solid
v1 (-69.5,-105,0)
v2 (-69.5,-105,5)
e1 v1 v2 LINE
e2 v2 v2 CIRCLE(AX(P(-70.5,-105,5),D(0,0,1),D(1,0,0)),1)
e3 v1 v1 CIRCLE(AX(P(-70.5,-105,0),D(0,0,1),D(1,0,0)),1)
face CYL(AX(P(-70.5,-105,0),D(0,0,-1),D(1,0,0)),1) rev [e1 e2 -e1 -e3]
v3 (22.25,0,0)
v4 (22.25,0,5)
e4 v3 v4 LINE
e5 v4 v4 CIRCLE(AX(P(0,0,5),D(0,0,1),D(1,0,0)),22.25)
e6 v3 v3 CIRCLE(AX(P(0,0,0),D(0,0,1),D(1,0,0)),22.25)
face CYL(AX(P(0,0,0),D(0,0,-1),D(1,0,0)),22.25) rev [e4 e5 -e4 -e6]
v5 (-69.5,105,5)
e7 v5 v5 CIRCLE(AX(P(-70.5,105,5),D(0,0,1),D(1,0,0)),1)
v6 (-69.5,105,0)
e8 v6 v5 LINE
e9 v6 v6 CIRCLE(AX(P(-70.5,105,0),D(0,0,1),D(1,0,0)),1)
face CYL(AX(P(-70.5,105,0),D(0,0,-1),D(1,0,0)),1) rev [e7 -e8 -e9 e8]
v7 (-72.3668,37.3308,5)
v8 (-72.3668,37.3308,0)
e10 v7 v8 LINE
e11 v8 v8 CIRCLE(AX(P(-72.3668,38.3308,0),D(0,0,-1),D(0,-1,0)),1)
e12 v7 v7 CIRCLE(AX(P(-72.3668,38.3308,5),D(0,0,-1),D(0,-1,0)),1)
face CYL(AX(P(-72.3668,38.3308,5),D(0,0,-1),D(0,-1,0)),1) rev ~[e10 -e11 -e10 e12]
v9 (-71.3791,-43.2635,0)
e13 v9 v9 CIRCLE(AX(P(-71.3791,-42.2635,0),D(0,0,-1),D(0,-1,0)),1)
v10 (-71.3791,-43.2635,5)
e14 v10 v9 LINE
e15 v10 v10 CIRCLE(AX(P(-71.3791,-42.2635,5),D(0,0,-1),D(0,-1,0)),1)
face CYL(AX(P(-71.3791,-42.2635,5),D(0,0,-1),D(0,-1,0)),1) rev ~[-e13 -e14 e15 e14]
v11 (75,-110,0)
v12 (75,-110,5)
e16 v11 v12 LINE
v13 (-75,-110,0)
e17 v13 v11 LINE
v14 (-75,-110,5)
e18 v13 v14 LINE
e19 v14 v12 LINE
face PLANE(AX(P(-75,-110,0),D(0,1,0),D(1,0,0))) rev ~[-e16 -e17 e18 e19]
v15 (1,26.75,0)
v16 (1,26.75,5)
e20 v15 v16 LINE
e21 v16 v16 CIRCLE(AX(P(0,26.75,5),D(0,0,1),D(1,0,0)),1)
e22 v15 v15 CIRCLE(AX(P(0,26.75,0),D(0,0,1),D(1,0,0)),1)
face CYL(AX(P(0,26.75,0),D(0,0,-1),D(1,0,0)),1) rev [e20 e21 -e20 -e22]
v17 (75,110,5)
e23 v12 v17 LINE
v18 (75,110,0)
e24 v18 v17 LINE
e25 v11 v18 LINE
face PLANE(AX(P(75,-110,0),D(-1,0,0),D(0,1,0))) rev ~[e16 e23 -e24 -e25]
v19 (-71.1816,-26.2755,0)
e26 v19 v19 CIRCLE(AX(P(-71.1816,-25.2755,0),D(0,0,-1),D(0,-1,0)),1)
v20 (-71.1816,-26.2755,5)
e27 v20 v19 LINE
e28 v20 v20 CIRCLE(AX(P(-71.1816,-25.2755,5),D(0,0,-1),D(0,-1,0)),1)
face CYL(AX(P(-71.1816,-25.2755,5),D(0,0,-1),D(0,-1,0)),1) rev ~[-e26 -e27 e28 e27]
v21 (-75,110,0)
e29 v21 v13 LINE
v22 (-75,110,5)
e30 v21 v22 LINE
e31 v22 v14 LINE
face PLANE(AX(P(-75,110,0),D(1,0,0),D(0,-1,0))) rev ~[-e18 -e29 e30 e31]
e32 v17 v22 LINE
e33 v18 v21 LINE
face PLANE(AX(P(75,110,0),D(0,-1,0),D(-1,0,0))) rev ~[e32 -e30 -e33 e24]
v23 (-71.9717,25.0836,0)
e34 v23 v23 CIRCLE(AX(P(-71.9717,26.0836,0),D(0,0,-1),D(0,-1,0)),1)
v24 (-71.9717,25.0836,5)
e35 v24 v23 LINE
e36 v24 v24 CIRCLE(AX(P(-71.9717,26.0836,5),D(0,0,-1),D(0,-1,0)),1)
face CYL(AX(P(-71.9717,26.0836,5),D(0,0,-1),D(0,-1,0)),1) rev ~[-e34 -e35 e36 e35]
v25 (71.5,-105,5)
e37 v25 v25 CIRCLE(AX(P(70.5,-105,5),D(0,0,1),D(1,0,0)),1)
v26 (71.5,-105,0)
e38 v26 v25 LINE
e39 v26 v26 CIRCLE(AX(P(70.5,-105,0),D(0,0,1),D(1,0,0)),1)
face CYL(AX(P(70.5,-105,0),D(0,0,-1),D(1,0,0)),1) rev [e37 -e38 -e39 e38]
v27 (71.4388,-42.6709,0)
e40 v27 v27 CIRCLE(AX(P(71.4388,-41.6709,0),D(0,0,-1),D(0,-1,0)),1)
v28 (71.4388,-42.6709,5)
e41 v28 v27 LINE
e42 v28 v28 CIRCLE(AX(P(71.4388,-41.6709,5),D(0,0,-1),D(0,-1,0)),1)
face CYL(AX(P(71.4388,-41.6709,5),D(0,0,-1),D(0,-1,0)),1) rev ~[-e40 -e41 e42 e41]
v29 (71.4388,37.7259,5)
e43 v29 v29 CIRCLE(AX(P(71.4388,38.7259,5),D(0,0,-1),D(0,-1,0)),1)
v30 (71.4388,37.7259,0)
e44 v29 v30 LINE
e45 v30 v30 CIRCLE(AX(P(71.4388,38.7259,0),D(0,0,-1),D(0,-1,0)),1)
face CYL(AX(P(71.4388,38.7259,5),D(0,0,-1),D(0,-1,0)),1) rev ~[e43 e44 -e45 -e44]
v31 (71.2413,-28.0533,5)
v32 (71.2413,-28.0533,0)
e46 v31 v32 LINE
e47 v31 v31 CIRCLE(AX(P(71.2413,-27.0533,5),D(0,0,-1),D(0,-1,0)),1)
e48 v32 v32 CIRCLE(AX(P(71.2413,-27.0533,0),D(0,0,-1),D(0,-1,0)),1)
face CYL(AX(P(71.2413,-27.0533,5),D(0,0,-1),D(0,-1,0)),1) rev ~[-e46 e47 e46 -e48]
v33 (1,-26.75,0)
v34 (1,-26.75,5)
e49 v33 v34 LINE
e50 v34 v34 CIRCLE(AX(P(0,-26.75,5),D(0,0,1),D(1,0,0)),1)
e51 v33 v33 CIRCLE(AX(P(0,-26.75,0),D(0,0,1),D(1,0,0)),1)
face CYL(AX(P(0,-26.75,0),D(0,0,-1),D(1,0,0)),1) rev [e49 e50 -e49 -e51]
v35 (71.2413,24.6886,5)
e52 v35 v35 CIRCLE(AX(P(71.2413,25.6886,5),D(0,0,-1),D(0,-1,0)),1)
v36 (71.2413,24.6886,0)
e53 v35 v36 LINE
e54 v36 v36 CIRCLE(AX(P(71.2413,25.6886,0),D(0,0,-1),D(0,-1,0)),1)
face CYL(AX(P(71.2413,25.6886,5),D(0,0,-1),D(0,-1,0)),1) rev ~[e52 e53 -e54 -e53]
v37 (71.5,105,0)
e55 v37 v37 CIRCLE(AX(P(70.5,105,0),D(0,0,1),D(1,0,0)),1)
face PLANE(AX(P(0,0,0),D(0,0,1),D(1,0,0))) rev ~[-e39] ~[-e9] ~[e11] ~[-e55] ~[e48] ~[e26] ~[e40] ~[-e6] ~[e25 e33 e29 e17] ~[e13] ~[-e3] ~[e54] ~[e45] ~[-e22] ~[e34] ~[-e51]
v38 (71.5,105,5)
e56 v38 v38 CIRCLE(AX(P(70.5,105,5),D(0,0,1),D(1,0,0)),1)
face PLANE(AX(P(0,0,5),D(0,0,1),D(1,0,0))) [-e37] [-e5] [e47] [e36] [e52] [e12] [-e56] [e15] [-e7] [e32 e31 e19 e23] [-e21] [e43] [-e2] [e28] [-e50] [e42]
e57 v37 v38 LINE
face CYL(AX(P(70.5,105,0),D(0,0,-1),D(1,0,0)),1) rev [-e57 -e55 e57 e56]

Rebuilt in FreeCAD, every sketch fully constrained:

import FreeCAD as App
import Part
import Sketcher
from FreeCAD import Vector
Q = App.Units.Quantity

doc = App.newDocument("Part")
body = doc.addObject("PartDesign::Body", "Body")

# Sketch on XY plane
sketch1 = doc.addObject("Sketcher::SketchObject", "Sketch")
body.addObject(sketch1)
sketch1.AttachmentSupport = (doc.XY_Plane, [""])
sketch1.MapMode = "FlatFace"
sketch1.addGeometry(Part.LineSegment(Vector(75, -110, 0), Vector(75, 110, 0)), False)
sketch1.addGeometry(Part.LineSegment(Vector(75, 110, 0), Vector(-75, 110, 0)), False)
sketch1.addGeometry(Part.LineSegment(Vector(-75, 110, 0), Vector(-75, -110, 0)), False)
sketch1.addGeometry(Part.LineSegment(Vector(-75, -110, 0), Vector(75, -110, 0)), False)
sketch1.addGeometry(Part.Circle(Vector(-70.5, -105, 0), Vector(0, 0, 1), 1), False)
sketch1.addGeometry(Part.Circle(Vector(0, -26.75, 0), Vector(0, 0, 1), 1), False)
sketch1.addGeometry(Part.Circle(Vector(70.5, -105, 0), Vector(0, 0, 1), 1), False)
sketch1.addGeometry(Part.Circle(Vector(0, 0, 0), Vector(0, 0, 1), 22.25), False)
sketch1.addGeometry(Part.Circle(Vector(0, 26.75, 0), Vector(0, 0, 1), 1), False)
sketch1.addGeometry(Part.Circle(Vector(-70.5, 105, 0), Vector(0, 0, 1), 1), False)
sketch1.addGeometry(Part.Circle(Vector(70.5, 105, 0), Vector(0, 0, 1), 1), False)
sketch1.addConstraint(Sketcher.Constraint("Coincident", 0, 2, 1, 1))
sketch1.addConstraint(Sketcher.Constraint("Coincident", 1, 2, 2, 1))
sketch1.addConstraint(Sketcher.Constraint("Coincident", 2, 2, 3, 1))
sketch1.addConstraint(Sketcher.Constraint("Coincident", 3, 2, 0, 1))
sketch1.addConstraint(Sketcher.Constraint("Vertical", 0))
sketch1.addConstraint(Sketcher.Constraint("Horizontal", 1))
sketch1.addConstraint(Sketcher.Constraint("Vertical", 2))
sketch1.addConstraint(Sketcher.Constraint("Horizontal", 3))
sketch1.addConstraint(Sketcher.Constraint("Coincident", 7, 3, -1, 1))
sketch1.addConstraint(Sketcher.Constraint("Equal", 4, 5))
sketch1.addConstraint(Sketcher.Constraint("Equal", 5, 6))
sketch1.addConstraint(Sketcher.Constraint("Equal", 6, 8))
sketch1.addConstraint(Sketcher.Constraint("Equal", 8, 9))
sketch1.addConstraint(Sketcher.Constraint("Equal", 9, 10))
sketch1.addConstraint(Sketcher.Constraint("Symmetric", 5, 3, 8, 3, -1, 1))
sketch1.addConstraint(Sketcher.Constraint("Symmetric", 6, 3, 9, 3, -1, 1))
sketch1.addConstraint(Sketcher.Constraint("Symmetric", 4, 3, 10, 3, -1, 1))
sketch1.addConstraint(Sketcher.Constraint("Symmetric", 0, 2, 2, 2, -1, 1))
sketch1.addConstraint(Sketcher.Constraint("Symmetric", 4, 3, 6, 3, -2))
sketch1.addConstraint(Sketcher.Constraint("PointOnObject", 5, 3, -2))
sketch1.addConstraint(Sketcher.Constraint("Diameter", 4, Q("2 mm")))
sketch1.addConstraint(Sketcher.Constraint("Diameter", 7, Q("44.5 mm")))
sketch1.addConstraint(Sketcher.Constraint("DistanceX", 1, 2, 1, 1, Q("150 mm")))
sketch1.addConstraint(Sketcher.Constraint("DistanceY", 0, 1, 0, 2, Q("220 mm")))
sketch1.addConstraint(Sketcher.Constraint("DistanceY", 4, 3, -1, 1, Q("105 mm")))
sketch1.addConstraint(Sketcher.Constraint("DistanceX", 4, 3, 6, 3, Q("141 mm")))
sketch1.addConstraint(Sketcher.Constraint("DistanceY", 5, 3, 8, 3, Q("53.5 mm")))
pad1 = doc.addObject("PartDesign::Pad", "Pad")
body.addObject(pad1)
pad1.Profile = sketch1
pad1.Length = 5

# Sketch on XY plane
sketch2 = doc.addObject("Sketcher::SketchObject", "Sketch001")
body.addObject(sketch2)
sketch2.AttachmentSupport = (doc.XY_Plane, [""])
sketch2.MapMode = "FlatFace"
sketch2.AttachmentOffset = App.Placement(Vector(0, 0, 5), App.Rotation())
sketch2.addGeometry(Part.Circle(Vector(71.2413, 25.6886, 0), Vector(0, 0, 1), 1), False)
sketch2.addConstraint(Sketcher.Constraint("Diameter", 0, Q("2 mm")))
sketch2.addConstraint(Sketcher.Constraint("DistanceX", -1, 1, 0, 3, Q("71.2413 mm")))
sketch2.addConstraint(Sketcher.Constraint("DistanceY", -1, 1, 0, 3, Q("25.6886 mm")))
doc.recompute()
hole = doc.addObject("PartDesign::Hole", "Hole")
body.addObject(hole)
hole.Profile = sketch2
hole.ThreadType = "None"
hole.Diameter = 2
hole.DepthType = "ThroughAll"

# Sketch on XY plane
sketch3 = doc.addObject("Sketcher::SketchObject", "Sketch002")
body.addObject(sketch3)
sketch3.AttachmentSupport = (doc.XY_Plane, [""])
sketch3.MapMode = "FlatFace"
sketch3.AttachmentOffset = App.Placement(Vector(0, 0, 5), App.Rotation())
sketch3.addGeometry(Part.Circle(Vector(-71.9717, 26.0836, 0), Vector(0, 0, 1), 1), False)
sketch3.addConstraint(Sketcher.Constraint("Diameter", 0, Q("2 mm")))
sketch3.addConstraint(Sketcher.Constraint("DistanceX", 0, 3, -1, 1, Q("71.9717 mm")))
sketch3.addConstraint(Sketcher.Constraint("DistanceY", -1, 1, 0, 3, Q("26.0836 mm")))
doc.recompute()
hole2 = doc.addObject("PartDesign::Hole", "Hole001")
body.addObject(hole2)
hole2.Profile = sketch3
hole2.ThreadType = "None"
hole2.Diameter = 2
hole2.DepthType = "ThroughAll"

# Sketch on XY plane
sketch4 = doc.addObject("Sketcher::SketchObject", "Sketch003")
body.addObject(sketch4)
sketch4.AttachmentSupport = (doc.XY_Plane, [""])
sketch4.MapMode = "FlatFace"
sketch4.AttachmentOffset = App.Placement(Vector(0, 0, 5), App.Rotation())
sketch4.addGeometry(Part.Circle(Vector(-72.3668, 38.3308, 0), Vector(0, 0, 1), 1), False)
sketch4.addConstraint(Sketcher.Constraint("Diameter", 0, Q("2 mm")))
sketch4.addConstraint(Sketcher.Constraint("DistanceX", 0, 3, -1, 1, Q("72.3668 mm")))
sketch4.addConstraint(Sketcher.Constraint("DistanceY", -1, 1, 0, 3, Q("38.3308 mm")))
doc.recompute()
hole3 = doc.addObject("PartDesign::Hole", "Hole002")
body.addObject(hole3)
hole3.Profile = sketch4
hole3.ThreadType = "None"
hole3.Diameter = 2
hole3.DepthType = "ThroughAll"

# Sketch on XY plane
sketch5 = doc.addObject("Sketcher::SketchObject", "Sketch004")
body.addObject(sketch5)
sketch5.AttachmentSupport = (doc.XY_Plane, [""])
sketch5.MapMode = "FlatFace"
sketch5.AttachmentOffset = App.Placement(Vector(0, 0, 5), App.Rotation())
sketch5.addGeometry(Part.Circle(Vector(71.4388, 38.7259, 0), Vector(0, 0, 1), 1), False)
sketch5.addConstraint(Sketcher.Constraint("Diameter", 0, Q("2 mm")))
sketch5.addConstraint(Sketcher.Constraint("DistanceY", -1, 1, 0, 3, Q("38.726 mm")))
sketch5.addConstraint(Sketcher.Constraint("DistanceX", -1, 1, 0, 3, Q("71.4388 mm")))
doc.recompute()
hole4 = doc.addObject("PartDesign::Hole", "Hole003")
body.addObject(hole4)
hole4.Profile = sketch5
hole4.ThreadType = "None"
hole4.Diameter = 2
hole4.DepthType = "ThroughAll"

# Sketch on XY plane
sketch6 = doc.addObject("Sketcher::SketchObject", "Sketch005")
body.addObject(sketch6)
sketch6.AttachmentSupport = (doc.XY_Plane, [""])
sketch6.MapMode = "FlatFace"
sketch6.AttachmentOffset = App.Placement(Vector(0, 0, 5), App.Rotation())
sketch6.addGeometry(Part.Circle(Vector(-71.1816, -25.2755, 0), Vector(0, 0, 1), 1), False)
sketch6.addConstraint(Sketcher.Constraint("Diameter", 0, Q("2 mm")))
sketch6.addConstraint(Sketcher.Constraint("DistanceX", 0, 3, -1, 1, Q("71.1816 mm")))
sketch6.addConstraint(Sketcher.Constraint("DistanceY", 0, 3, -1, 1, Q("25.2755 mm")))
doc.recompute()
hole5 = doc.addObject("PartDesign::Hole", "Hole004")
body.addObject(hole5)
hole5.Profile = sketch6
hole5.ThreadType = "None"
hole5.Diameter = 2
hole5.DepthType = "ThroughAll"

# Sketch on XY plane
sketch7 = doc.addObject("Sketcher::SketchObject", "Sketch006")
body.addObject(sketch7)
sketch7.AttachmentSupport = (doc.XY_Plane, [""])
sketch7.MapMode = "FlatFace"
sketch7.AttachmentOffset = App.Placement(Vector(0, 0, 5), App.Rotation())
sketch7.addGeometry(Part.Circle(Vector(71.2413, -27.0533, 0), Vector(0, 0, 1), 1), False)
sketch7.addConstraint(Sketcher.Constraint("Diameter", 0, Q("2 mm")))
sketch7.addConstraint(Sketcher.Constraint("DistanceX", -1, 1, 0, 3, Q("71.2413 mm")))
sketch7.addConstraint(Sketcher.Constraint("DistanceY", 0, 3, -1, 1, Q("27.0533 mm")))
doc.recompute()
hole6 = doc.addObject("PartDesign::Hole", "Hole005")
body.addObject(hole6)
hole6.Profile = sketch7
hole6.ThreadType = "None"
hole6.Diameter = 2
hole6.DepthType = "ThroughAll"

# Sketch on XY plane
sketch8 = doc.addObject("Sketcher::SketchObject", "Sketch007")
body.addObject(sketch8)
sketch8.AttachmentSupport = (doc.XY_Plane, [""])
sketch8.MapMode = "FlatFace"
sketch8.AttachmentOffset = App.Placement(Vector(0, 0, 5), App.Rotation())
sketch8.addGeometry(Part.Circle(Vector(71.4388, -41.6709, 0), Vector(0, 0, 1), 1), False)
sketch8.addConstraint(Sketcher.Constraint("Diameter", 0, Q("2 mm")))
sketch8.addConstraint(Sketcher.Constraint("DistanceY", 0, 3, -1, 1, Q("41.671 mm")))
sketch8.addConstraint(Sketcher.Constraint("DistanceX", -1, 1, 0, 3, Q("71.4388 mm")))
doc.recompute()
hole7 = doc.addObject("PartDesign::Hole", "Hole006")
body.addObject(hole7)
hole7.Profile = sketch8
hole7.ThreadType = "None"
hole7.Diameter = 2
hole7.DepthType = "ThroughAll"

# Sketch on XY plane
sketch9 = doc.addObject("Sketcher::SketchObject", "Sketch008")
body.addObject(sketch9)
sketch9.AttachmentSupport = (doc.XY_Plane, [""])
sketch9.MapMode = "FlatFace"
sketch9.AttachmentOffset = App.Placement(Vector(0, 0, 5), App.Rotation())
sketch9.addGeometry(Part.Circle(Vector(-71.3791, -42.2635, 0), Vector(0, 0, 1), 1), False)
sketch9.addConstraint(Sketcher.Constraint("Diameter", 0, Q("2 mm")))
sketch9.addConstraint(Sketcher.Constraint("DistanceX", 0, 3, -1, 1, Q("71.379 mm")))
sketch9.addConstraint(Sketcher.Constraint("DistanceY", 0, 3, -1, 1, Q("42.2635 mm")))
doc.recompute()
hole8 = doc.addObject("PartDesign::Hole", "Hole007")
body.addObject(hole8)
hole8.Profile = sketch9
hole8.ThreadType = "None"
hole8.Diameter = 2
hole8.DepthType = "ThroughAll"

doc.recompute()
